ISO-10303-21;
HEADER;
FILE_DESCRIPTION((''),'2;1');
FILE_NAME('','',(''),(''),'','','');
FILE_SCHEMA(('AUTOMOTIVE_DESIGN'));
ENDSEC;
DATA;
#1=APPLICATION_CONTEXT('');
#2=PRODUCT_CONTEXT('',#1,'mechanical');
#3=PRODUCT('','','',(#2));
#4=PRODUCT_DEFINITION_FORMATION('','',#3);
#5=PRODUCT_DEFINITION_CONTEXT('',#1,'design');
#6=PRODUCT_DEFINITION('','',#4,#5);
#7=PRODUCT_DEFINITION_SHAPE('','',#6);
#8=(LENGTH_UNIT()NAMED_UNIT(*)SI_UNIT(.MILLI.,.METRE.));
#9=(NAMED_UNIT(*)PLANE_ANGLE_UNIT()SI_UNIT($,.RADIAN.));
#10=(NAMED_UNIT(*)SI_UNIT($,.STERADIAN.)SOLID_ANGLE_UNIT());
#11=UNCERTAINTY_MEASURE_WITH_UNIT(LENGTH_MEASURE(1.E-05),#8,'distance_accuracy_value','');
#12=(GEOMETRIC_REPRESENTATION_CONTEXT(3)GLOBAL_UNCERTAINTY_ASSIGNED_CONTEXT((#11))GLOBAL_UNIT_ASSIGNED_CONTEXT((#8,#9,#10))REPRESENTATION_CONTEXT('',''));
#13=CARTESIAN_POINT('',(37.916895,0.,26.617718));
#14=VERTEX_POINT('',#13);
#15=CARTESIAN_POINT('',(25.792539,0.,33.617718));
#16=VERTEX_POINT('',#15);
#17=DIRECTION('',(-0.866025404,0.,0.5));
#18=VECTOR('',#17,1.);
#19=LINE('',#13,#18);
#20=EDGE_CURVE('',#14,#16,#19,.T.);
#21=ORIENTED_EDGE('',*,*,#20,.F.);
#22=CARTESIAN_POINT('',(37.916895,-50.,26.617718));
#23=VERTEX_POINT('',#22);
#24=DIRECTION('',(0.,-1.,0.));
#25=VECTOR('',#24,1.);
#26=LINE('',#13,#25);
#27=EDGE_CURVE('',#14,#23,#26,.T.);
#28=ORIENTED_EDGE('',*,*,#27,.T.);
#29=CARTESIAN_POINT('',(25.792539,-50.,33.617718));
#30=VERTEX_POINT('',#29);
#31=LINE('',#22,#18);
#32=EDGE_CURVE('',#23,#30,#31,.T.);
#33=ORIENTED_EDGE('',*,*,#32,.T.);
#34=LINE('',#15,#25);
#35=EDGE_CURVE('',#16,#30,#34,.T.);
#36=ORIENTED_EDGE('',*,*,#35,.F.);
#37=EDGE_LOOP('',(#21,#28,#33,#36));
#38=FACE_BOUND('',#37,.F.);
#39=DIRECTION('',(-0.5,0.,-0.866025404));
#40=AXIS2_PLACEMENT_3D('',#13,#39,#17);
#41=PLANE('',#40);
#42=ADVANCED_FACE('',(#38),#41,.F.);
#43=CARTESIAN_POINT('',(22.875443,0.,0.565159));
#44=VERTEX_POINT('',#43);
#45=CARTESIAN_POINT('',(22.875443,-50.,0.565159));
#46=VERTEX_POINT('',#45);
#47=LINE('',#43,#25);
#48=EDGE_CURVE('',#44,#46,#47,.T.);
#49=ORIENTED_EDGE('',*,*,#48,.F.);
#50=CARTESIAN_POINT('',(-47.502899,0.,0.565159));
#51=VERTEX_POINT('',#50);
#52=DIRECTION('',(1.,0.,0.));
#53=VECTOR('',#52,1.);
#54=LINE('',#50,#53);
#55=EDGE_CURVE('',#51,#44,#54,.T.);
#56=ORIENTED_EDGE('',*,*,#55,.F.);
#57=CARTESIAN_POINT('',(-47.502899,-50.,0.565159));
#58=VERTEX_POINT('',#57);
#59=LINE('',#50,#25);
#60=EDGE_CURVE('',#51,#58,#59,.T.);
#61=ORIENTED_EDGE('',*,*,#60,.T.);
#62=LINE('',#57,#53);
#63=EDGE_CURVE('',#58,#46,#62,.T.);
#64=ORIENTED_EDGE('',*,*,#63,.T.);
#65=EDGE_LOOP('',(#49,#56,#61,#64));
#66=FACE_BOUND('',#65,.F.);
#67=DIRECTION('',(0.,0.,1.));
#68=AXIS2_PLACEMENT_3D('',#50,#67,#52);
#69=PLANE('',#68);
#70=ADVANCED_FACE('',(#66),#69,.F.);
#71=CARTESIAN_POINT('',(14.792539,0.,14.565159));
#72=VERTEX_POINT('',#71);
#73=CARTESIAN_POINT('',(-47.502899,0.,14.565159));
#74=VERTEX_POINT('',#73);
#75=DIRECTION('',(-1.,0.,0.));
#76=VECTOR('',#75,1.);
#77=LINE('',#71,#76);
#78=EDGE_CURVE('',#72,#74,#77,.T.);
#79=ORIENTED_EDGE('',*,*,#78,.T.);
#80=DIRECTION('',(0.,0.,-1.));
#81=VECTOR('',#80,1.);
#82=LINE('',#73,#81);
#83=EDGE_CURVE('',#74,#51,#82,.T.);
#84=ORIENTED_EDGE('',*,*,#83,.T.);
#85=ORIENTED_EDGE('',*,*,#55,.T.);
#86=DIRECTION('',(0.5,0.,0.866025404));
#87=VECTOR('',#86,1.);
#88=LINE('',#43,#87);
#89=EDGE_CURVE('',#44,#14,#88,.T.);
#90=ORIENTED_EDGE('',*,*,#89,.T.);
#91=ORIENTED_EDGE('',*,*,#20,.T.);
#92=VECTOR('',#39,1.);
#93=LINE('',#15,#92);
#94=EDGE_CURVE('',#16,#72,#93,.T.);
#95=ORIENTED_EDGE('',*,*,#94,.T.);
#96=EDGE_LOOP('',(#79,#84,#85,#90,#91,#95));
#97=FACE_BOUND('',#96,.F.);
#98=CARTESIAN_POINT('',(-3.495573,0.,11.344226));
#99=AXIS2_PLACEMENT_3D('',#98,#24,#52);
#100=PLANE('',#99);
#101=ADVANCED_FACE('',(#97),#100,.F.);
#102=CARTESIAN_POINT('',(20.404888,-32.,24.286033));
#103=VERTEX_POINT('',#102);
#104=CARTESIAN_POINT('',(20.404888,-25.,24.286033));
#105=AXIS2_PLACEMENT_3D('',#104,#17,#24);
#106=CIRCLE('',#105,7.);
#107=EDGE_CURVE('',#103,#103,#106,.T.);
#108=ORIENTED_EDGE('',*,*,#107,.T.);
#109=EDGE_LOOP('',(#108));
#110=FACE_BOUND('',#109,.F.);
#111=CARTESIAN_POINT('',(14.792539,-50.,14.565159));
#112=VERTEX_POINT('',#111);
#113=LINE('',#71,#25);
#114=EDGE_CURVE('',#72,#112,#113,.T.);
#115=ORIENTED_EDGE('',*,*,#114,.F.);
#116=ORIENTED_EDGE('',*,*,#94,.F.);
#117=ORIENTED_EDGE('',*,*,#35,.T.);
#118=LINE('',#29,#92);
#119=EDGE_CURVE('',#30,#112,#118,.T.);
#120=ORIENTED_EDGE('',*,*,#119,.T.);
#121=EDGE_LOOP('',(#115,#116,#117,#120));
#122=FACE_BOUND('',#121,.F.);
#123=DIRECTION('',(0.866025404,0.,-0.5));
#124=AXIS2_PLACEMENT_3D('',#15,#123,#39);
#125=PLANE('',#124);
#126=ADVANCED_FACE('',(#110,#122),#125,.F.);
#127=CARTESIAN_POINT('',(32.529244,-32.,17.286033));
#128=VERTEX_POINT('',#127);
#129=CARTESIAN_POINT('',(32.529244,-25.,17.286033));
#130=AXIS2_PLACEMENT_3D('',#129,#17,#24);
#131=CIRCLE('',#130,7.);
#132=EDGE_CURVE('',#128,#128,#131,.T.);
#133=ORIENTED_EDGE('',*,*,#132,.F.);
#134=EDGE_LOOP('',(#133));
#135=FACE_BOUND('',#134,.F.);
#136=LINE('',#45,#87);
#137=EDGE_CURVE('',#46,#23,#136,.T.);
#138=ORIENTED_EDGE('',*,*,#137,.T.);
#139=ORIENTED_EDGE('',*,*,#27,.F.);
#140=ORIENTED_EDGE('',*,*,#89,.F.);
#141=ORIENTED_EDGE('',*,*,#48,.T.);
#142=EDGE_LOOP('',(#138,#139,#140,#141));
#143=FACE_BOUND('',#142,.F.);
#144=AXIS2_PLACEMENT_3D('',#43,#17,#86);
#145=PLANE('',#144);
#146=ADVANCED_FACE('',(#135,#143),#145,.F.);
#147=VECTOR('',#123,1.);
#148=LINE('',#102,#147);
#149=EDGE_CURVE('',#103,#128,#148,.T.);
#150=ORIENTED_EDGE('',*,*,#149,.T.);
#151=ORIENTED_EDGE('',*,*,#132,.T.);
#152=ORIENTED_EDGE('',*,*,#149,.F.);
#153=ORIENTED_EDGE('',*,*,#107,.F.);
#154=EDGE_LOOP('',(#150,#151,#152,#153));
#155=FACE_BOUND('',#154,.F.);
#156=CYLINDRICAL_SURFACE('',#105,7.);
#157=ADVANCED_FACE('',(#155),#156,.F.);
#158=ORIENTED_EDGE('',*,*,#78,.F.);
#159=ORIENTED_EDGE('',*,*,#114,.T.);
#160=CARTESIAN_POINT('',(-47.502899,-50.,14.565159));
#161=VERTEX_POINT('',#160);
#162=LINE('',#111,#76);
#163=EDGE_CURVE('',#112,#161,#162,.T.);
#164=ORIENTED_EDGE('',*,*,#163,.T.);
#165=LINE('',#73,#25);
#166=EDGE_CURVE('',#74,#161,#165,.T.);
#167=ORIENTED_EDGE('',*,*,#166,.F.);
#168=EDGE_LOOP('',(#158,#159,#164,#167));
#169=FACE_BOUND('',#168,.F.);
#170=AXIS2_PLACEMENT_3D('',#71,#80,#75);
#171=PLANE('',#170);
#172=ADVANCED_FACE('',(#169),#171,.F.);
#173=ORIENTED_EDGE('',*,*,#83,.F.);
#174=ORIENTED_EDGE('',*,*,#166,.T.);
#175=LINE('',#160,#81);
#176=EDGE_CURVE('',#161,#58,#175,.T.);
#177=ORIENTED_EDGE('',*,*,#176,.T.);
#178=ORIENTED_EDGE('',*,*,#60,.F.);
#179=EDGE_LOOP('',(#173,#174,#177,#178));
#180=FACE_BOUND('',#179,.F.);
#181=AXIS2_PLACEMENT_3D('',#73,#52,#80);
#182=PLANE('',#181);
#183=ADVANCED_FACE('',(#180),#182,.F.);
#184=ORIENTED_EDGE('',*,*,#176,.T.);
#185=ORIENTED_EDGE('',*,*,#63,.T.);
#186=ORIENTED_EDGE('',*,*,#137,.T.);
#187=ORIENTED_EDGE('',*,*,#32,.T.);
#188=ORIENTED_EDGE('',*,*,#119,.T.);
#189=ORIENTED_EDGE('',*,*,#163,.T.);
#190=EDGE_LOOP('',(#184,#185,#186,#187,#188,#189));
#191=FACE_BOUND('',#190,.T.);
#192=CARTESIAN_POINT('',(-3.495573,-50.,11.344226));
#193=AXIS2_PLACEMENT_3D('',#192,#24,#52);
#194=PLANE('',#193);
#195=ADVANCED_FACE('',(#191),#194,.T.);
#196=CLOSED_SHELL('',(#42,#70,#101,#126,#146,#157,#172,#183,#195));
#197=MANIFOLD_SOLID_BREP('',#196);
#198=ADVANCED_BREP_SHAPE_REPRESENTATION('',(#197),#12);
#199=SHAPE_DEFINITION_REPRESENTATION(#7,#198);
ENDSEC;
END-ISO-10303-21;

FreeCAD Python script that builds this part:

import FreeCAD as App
import Part
import Sketcher
from FreeCAD import Vector
Q = App.Units.Quantity

doc = App.newDocument("Part")
body = doc.addObject("PartDesign::Body", "Body")

sketch1 = doc.addObject("Sketcher::SketchObject", "Sketch")
body.addObject(sketch1)
sketch1.AttachmentSupport = (doc.XZ_Plane, [""])
sketch1.MapMode = "FlatFace"
sketch1.addGeometry([
    Part.LineSegment(Vector(14.792539, 14.565159, 0), Vector(-47.502899, 14.565159, 0)),
    Part.LineSegment(Vector(-47.502899, 14.565159, 0), Vector(-47.502899, 0.565159, 0)),
    Part.LineSegment(Vector(-47.502899, 0.565159, 0), Vector(22.875443, 0.565159, 0)),
    Part.LineSegment(Vector(22.875443, 0.565159, 0), Vector(37.916895, 26.617718, 0)),
    Part.LineSegment(Vector(37.916895, 26.617718, 0), Vector(25.792539, 33.617718, 0)),
    Part.LineSegment(Vector(25.792539, 33.617718, 0), Vector(14.792539, 14.565159, 0)),
], False)
sketch1.addConstraint([
    Sketcher.Constraint("Coincident", 0, 2, 1, 1),
    Sketcher.Constraint("Coincident", 1, 2, 2, 1),
    Sketcher.Constraint("Coincident", 2, 2, 3, 1),
    Sketcher.Constraint("Coincident", 3, 2, 4, 1),
    Sketcher.Constraint("Coincident", 4, 2, 5, 1),
    Sketcher.Constraint("Coincident", 5, 2, 0, 1),
    Sketcher.Constraint("Horizontal", 0),
    Sketcher.Constraint("Vertical", 1),
    Sketcher.Constraint("Horizontal", 2),
    Sketcher.Constraint("Perpendicular", 3, 4),
    Sketcher.Constraint("Perpendicular", 4, 5),
    Sketcher.Constraint("DistanceY", 1, 2, 1, 1, 14.0),
    Sketcher.Constraint("Angle", 3, Q("60 deg")),
    Sketcher.Constraint("Distance", 4, 14.0),
    Sketcher.Constraint("Distance", 5, 22.0),
    Sketcher.Constraint("DistanceX", 0, 2, 0, 1, 62.295438),
    Sketcher.Constraint("DistanceX", 0, 2, -1, 1, 47.502899),
    Sketcher.Constraint("DistanceY", -1, 1, 0, 2, 14.565159),
])
pad1 = doc.addObject("PartDesign::Pad", "Pad")
body.addObject(pad1)
pad1.Profile = sketch1
pad1.Length = 50

sketch2 = doc.addObject("Sketcher::SketchObject", "Sketch001")
body.addObject(sketch2)
sketch2.Placement = App.Placement(Vector(4.787505, 0, -2.764067), App.Rotation(Vector(0, -1, 0), Vector(0.5, 0, 0.866025404), Vector(-0.866025404, 0, 0.5), "ZXY"))
sketch2.addGeometry(Part.Circle(Vector(25, 31.234765, 0), Vector(0, 0, 1), 7), False)
sketch2.addConstraint([
    Sketcher.Constraint("Diameter", 0, 14.0),
    Sketcher.Constraint("DistanceX", -1, 1, 0, 3, 25.0),
    Sketcher.Constraint("DistanceY", -1, 1, 0, 3, 31.234765),
])
pocket1 = doc.addObject("PartDesign::Pocket", "Pocket")
body.addObject(pocket1)
pocket1.Profile = sketch2
pocket1.Type = "ThroughAll"

doc.recompute()
